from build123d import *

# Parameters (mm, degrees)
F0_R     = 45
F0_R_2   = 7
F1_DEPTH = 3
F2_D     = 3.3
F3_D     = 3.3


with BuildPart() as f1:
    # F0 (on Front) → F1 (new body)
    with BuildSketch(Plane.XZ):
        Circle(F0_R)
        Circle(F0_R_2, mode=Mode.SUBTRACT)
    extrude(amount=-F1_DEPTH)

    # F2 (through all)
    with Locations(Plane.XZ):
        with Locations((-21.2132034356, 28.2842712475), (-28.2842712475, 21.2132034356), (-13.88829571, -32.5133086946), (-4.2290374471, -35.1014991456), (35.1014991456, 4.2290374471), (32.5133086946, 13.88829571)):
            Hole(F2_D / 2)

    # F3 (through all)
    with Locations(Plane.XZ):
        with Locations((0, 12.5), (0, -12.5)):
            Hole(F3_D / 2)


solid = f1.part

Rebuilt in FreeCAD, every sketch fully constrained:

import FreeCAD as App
import Part
import Sketcher

doc = App.newDocument("Part")
body = doc.addObject("PartDesign::Body", "Body")

# Sketch on XZ plane
sketch1 = doc.addObject("Sketcher::SketchObject", "Sketch")
body.addObject(sketch1)
sketch1.AttachmentSupport = (doc.XZ_Plane, [""])
sketch1.MapMode = "FlatFace"
sketch1.addGeometry([
    Part.Circle(App.Vector(0, 0, 0), App.Vector(0, 0, 1), 45),
    Part.Circle(App.Vector(0, 0, 0), App.Vector(0, 0, 1), 7),
], False)
sketch1.addConstraint([
    Sketcher.Constraint("Coincident", 0, 3, -1, 1),
    Sketcher.Constraint("Coincident", 1, 3, -1, 1),
    Sketcher.Constraint("Diameter", 0, 90.0),
    Sketcher.Constraint("Diameter", 1, 14.0),
])
pad1 = doc.addObject("PartDesign::Pad", "Pad")
body.addObject(pad1)
pad1.Profile = sketch1
pad1.Length = 3
pad1.Reversed = True

# Sketch on XZ plane
sketch2 = doc.addObject("Sketcher::SketchObject", "Sketch001")
body.addObject(sketch2)
sketch2.AttachmentSupport = (doc.XZ_Plane, [""])
sketch2.MapMode = "FlatFace"
sketch2.addGeometry([
    Part.Circle(App.Vector(-21.213203, 28.284271, 0), App.Vector(0, 0, 1), 1.65),  # 0
    Part.Circle(App.Vector(-28.284271, 21.213203, 0), App.Vector(0, 0, 1), 1.65),  # 1
    Part.Circle(App.Vector(-13.888296, -32.513309, 0), App.Vector(0, 0, 1), 1.65),  # 2
    Part.Circle(App.Vector(-4.229037, -35.101499, 0), App.Vector(0, 0, 1), 1.65),  # 3
    Part.Circle(App.Vector(35.101499, 4.229037, 0), App.Vector(0, 0, 1), 1.65),  # 4
    Part.Circle(App.Vector(32.513309, 13.888296, 0), App.Vector(0, 0, 1), 1.65),  # 5
], False)
sketch2.addConstraint([
    Sketcher.Constraint("Equal", 0, 1),
    Sketcher.Constraint("Equal", 1, 2),
    Sketcher.Constraint("Equal", 2, 3),
    Sketcher.Constraint("Equal", 3, 4),
    Sketcher.Constraint("Equal", 4, 5),
    Sketcher.Constraint("Diameter", 0, 3.3),
    Sketcher.Constraint("DistanceY", 3, 3, -1, 1, 35.101499),
    Sketcher.Constraint("DistanceX", -1, 1, 4, 3, 35.101499),
    Sketcher.Constraint("DistanceY", -1, 1, 0, 3, 28.284271),
    Sketcher.Constraint("DistanceX", 1, 3, -1, 1, 28.284271),
    Sketcher.Constraint("DistanceY", 2, 3, -1, 1, 32.513309),
    Sketcher.Constraint("DistanceX", -1, 1, 5, 3, 32.513309),
    Sketcher.Constraint("DistanceX", 2, 3, 3, 3, 9.659258),
    Sketcher.Constraint("DistanceY", 4, 3, 5, 3, 9.659258),
    Sketcher.Constraint("DistanceX", 0, 3, -1, 1, 21.213203),
    Sketcher.Constraint("DistanceY", -1, 1, 1, 3, 21.213203),
    Sketcher.Constraint("DistanceX", 2, 3, -1, 1, 13.888296),
    Sketcher.Constraint("DistanceY", -1, 1, 4, 3, 4.229037),
])
doc.recompute()
hole = doc.addObject("PartDesign::Hole", "Hole")
body.addObject(hole)
hole.Profile = sketch2
hole.ThreadType = "None"
hole.Diameter = 3.3
hole.DepthType = "ThroughAll"

# Sketch on XZ plane
sketch3 = doc.addObject("Sketcher::SketchObject", "Sketch002")
body.addObject(sketch3)
sketch3.AttachmentSupport = (doc.XZ_Plane, [""])
sketch3.MapMode = "FlatFace"
sketch3.addGeometry([
    Part.Circle(App.Vector(0, 12.5, 0), App.Vector(0, 0, 1), 1.65),
    Part.Circle(App.Vector(0, -12.5, 0), App.Vector(0, 0, 1), 1.65),
], False)
sketch3.addConstraint([
    Sketcher.Constraint("Equal", 0, 1),
    Sketcher.Constraint("Symmetric", 0, 3, 1, 3, -1, 1),
    Sketcher.Constraint("PointOnObject", 0, 3, -2),
    Sketcher.Constraint("Diameter", 0, 3.3),
    Sketcher.Constraint("DistanceY", 1, 3, 0, 3, 25.0),
])
doc.recompute()
hole2 = doc.addObject("PartDesign::Hole", "Hole001")
body.addObject(hole2)
hole2.Profile = sketch3
hole2.ThreadType = "None"
hole2.Diameter = 3.3
hole2.DepthType = "ThroughAll"

doc.recompute()
